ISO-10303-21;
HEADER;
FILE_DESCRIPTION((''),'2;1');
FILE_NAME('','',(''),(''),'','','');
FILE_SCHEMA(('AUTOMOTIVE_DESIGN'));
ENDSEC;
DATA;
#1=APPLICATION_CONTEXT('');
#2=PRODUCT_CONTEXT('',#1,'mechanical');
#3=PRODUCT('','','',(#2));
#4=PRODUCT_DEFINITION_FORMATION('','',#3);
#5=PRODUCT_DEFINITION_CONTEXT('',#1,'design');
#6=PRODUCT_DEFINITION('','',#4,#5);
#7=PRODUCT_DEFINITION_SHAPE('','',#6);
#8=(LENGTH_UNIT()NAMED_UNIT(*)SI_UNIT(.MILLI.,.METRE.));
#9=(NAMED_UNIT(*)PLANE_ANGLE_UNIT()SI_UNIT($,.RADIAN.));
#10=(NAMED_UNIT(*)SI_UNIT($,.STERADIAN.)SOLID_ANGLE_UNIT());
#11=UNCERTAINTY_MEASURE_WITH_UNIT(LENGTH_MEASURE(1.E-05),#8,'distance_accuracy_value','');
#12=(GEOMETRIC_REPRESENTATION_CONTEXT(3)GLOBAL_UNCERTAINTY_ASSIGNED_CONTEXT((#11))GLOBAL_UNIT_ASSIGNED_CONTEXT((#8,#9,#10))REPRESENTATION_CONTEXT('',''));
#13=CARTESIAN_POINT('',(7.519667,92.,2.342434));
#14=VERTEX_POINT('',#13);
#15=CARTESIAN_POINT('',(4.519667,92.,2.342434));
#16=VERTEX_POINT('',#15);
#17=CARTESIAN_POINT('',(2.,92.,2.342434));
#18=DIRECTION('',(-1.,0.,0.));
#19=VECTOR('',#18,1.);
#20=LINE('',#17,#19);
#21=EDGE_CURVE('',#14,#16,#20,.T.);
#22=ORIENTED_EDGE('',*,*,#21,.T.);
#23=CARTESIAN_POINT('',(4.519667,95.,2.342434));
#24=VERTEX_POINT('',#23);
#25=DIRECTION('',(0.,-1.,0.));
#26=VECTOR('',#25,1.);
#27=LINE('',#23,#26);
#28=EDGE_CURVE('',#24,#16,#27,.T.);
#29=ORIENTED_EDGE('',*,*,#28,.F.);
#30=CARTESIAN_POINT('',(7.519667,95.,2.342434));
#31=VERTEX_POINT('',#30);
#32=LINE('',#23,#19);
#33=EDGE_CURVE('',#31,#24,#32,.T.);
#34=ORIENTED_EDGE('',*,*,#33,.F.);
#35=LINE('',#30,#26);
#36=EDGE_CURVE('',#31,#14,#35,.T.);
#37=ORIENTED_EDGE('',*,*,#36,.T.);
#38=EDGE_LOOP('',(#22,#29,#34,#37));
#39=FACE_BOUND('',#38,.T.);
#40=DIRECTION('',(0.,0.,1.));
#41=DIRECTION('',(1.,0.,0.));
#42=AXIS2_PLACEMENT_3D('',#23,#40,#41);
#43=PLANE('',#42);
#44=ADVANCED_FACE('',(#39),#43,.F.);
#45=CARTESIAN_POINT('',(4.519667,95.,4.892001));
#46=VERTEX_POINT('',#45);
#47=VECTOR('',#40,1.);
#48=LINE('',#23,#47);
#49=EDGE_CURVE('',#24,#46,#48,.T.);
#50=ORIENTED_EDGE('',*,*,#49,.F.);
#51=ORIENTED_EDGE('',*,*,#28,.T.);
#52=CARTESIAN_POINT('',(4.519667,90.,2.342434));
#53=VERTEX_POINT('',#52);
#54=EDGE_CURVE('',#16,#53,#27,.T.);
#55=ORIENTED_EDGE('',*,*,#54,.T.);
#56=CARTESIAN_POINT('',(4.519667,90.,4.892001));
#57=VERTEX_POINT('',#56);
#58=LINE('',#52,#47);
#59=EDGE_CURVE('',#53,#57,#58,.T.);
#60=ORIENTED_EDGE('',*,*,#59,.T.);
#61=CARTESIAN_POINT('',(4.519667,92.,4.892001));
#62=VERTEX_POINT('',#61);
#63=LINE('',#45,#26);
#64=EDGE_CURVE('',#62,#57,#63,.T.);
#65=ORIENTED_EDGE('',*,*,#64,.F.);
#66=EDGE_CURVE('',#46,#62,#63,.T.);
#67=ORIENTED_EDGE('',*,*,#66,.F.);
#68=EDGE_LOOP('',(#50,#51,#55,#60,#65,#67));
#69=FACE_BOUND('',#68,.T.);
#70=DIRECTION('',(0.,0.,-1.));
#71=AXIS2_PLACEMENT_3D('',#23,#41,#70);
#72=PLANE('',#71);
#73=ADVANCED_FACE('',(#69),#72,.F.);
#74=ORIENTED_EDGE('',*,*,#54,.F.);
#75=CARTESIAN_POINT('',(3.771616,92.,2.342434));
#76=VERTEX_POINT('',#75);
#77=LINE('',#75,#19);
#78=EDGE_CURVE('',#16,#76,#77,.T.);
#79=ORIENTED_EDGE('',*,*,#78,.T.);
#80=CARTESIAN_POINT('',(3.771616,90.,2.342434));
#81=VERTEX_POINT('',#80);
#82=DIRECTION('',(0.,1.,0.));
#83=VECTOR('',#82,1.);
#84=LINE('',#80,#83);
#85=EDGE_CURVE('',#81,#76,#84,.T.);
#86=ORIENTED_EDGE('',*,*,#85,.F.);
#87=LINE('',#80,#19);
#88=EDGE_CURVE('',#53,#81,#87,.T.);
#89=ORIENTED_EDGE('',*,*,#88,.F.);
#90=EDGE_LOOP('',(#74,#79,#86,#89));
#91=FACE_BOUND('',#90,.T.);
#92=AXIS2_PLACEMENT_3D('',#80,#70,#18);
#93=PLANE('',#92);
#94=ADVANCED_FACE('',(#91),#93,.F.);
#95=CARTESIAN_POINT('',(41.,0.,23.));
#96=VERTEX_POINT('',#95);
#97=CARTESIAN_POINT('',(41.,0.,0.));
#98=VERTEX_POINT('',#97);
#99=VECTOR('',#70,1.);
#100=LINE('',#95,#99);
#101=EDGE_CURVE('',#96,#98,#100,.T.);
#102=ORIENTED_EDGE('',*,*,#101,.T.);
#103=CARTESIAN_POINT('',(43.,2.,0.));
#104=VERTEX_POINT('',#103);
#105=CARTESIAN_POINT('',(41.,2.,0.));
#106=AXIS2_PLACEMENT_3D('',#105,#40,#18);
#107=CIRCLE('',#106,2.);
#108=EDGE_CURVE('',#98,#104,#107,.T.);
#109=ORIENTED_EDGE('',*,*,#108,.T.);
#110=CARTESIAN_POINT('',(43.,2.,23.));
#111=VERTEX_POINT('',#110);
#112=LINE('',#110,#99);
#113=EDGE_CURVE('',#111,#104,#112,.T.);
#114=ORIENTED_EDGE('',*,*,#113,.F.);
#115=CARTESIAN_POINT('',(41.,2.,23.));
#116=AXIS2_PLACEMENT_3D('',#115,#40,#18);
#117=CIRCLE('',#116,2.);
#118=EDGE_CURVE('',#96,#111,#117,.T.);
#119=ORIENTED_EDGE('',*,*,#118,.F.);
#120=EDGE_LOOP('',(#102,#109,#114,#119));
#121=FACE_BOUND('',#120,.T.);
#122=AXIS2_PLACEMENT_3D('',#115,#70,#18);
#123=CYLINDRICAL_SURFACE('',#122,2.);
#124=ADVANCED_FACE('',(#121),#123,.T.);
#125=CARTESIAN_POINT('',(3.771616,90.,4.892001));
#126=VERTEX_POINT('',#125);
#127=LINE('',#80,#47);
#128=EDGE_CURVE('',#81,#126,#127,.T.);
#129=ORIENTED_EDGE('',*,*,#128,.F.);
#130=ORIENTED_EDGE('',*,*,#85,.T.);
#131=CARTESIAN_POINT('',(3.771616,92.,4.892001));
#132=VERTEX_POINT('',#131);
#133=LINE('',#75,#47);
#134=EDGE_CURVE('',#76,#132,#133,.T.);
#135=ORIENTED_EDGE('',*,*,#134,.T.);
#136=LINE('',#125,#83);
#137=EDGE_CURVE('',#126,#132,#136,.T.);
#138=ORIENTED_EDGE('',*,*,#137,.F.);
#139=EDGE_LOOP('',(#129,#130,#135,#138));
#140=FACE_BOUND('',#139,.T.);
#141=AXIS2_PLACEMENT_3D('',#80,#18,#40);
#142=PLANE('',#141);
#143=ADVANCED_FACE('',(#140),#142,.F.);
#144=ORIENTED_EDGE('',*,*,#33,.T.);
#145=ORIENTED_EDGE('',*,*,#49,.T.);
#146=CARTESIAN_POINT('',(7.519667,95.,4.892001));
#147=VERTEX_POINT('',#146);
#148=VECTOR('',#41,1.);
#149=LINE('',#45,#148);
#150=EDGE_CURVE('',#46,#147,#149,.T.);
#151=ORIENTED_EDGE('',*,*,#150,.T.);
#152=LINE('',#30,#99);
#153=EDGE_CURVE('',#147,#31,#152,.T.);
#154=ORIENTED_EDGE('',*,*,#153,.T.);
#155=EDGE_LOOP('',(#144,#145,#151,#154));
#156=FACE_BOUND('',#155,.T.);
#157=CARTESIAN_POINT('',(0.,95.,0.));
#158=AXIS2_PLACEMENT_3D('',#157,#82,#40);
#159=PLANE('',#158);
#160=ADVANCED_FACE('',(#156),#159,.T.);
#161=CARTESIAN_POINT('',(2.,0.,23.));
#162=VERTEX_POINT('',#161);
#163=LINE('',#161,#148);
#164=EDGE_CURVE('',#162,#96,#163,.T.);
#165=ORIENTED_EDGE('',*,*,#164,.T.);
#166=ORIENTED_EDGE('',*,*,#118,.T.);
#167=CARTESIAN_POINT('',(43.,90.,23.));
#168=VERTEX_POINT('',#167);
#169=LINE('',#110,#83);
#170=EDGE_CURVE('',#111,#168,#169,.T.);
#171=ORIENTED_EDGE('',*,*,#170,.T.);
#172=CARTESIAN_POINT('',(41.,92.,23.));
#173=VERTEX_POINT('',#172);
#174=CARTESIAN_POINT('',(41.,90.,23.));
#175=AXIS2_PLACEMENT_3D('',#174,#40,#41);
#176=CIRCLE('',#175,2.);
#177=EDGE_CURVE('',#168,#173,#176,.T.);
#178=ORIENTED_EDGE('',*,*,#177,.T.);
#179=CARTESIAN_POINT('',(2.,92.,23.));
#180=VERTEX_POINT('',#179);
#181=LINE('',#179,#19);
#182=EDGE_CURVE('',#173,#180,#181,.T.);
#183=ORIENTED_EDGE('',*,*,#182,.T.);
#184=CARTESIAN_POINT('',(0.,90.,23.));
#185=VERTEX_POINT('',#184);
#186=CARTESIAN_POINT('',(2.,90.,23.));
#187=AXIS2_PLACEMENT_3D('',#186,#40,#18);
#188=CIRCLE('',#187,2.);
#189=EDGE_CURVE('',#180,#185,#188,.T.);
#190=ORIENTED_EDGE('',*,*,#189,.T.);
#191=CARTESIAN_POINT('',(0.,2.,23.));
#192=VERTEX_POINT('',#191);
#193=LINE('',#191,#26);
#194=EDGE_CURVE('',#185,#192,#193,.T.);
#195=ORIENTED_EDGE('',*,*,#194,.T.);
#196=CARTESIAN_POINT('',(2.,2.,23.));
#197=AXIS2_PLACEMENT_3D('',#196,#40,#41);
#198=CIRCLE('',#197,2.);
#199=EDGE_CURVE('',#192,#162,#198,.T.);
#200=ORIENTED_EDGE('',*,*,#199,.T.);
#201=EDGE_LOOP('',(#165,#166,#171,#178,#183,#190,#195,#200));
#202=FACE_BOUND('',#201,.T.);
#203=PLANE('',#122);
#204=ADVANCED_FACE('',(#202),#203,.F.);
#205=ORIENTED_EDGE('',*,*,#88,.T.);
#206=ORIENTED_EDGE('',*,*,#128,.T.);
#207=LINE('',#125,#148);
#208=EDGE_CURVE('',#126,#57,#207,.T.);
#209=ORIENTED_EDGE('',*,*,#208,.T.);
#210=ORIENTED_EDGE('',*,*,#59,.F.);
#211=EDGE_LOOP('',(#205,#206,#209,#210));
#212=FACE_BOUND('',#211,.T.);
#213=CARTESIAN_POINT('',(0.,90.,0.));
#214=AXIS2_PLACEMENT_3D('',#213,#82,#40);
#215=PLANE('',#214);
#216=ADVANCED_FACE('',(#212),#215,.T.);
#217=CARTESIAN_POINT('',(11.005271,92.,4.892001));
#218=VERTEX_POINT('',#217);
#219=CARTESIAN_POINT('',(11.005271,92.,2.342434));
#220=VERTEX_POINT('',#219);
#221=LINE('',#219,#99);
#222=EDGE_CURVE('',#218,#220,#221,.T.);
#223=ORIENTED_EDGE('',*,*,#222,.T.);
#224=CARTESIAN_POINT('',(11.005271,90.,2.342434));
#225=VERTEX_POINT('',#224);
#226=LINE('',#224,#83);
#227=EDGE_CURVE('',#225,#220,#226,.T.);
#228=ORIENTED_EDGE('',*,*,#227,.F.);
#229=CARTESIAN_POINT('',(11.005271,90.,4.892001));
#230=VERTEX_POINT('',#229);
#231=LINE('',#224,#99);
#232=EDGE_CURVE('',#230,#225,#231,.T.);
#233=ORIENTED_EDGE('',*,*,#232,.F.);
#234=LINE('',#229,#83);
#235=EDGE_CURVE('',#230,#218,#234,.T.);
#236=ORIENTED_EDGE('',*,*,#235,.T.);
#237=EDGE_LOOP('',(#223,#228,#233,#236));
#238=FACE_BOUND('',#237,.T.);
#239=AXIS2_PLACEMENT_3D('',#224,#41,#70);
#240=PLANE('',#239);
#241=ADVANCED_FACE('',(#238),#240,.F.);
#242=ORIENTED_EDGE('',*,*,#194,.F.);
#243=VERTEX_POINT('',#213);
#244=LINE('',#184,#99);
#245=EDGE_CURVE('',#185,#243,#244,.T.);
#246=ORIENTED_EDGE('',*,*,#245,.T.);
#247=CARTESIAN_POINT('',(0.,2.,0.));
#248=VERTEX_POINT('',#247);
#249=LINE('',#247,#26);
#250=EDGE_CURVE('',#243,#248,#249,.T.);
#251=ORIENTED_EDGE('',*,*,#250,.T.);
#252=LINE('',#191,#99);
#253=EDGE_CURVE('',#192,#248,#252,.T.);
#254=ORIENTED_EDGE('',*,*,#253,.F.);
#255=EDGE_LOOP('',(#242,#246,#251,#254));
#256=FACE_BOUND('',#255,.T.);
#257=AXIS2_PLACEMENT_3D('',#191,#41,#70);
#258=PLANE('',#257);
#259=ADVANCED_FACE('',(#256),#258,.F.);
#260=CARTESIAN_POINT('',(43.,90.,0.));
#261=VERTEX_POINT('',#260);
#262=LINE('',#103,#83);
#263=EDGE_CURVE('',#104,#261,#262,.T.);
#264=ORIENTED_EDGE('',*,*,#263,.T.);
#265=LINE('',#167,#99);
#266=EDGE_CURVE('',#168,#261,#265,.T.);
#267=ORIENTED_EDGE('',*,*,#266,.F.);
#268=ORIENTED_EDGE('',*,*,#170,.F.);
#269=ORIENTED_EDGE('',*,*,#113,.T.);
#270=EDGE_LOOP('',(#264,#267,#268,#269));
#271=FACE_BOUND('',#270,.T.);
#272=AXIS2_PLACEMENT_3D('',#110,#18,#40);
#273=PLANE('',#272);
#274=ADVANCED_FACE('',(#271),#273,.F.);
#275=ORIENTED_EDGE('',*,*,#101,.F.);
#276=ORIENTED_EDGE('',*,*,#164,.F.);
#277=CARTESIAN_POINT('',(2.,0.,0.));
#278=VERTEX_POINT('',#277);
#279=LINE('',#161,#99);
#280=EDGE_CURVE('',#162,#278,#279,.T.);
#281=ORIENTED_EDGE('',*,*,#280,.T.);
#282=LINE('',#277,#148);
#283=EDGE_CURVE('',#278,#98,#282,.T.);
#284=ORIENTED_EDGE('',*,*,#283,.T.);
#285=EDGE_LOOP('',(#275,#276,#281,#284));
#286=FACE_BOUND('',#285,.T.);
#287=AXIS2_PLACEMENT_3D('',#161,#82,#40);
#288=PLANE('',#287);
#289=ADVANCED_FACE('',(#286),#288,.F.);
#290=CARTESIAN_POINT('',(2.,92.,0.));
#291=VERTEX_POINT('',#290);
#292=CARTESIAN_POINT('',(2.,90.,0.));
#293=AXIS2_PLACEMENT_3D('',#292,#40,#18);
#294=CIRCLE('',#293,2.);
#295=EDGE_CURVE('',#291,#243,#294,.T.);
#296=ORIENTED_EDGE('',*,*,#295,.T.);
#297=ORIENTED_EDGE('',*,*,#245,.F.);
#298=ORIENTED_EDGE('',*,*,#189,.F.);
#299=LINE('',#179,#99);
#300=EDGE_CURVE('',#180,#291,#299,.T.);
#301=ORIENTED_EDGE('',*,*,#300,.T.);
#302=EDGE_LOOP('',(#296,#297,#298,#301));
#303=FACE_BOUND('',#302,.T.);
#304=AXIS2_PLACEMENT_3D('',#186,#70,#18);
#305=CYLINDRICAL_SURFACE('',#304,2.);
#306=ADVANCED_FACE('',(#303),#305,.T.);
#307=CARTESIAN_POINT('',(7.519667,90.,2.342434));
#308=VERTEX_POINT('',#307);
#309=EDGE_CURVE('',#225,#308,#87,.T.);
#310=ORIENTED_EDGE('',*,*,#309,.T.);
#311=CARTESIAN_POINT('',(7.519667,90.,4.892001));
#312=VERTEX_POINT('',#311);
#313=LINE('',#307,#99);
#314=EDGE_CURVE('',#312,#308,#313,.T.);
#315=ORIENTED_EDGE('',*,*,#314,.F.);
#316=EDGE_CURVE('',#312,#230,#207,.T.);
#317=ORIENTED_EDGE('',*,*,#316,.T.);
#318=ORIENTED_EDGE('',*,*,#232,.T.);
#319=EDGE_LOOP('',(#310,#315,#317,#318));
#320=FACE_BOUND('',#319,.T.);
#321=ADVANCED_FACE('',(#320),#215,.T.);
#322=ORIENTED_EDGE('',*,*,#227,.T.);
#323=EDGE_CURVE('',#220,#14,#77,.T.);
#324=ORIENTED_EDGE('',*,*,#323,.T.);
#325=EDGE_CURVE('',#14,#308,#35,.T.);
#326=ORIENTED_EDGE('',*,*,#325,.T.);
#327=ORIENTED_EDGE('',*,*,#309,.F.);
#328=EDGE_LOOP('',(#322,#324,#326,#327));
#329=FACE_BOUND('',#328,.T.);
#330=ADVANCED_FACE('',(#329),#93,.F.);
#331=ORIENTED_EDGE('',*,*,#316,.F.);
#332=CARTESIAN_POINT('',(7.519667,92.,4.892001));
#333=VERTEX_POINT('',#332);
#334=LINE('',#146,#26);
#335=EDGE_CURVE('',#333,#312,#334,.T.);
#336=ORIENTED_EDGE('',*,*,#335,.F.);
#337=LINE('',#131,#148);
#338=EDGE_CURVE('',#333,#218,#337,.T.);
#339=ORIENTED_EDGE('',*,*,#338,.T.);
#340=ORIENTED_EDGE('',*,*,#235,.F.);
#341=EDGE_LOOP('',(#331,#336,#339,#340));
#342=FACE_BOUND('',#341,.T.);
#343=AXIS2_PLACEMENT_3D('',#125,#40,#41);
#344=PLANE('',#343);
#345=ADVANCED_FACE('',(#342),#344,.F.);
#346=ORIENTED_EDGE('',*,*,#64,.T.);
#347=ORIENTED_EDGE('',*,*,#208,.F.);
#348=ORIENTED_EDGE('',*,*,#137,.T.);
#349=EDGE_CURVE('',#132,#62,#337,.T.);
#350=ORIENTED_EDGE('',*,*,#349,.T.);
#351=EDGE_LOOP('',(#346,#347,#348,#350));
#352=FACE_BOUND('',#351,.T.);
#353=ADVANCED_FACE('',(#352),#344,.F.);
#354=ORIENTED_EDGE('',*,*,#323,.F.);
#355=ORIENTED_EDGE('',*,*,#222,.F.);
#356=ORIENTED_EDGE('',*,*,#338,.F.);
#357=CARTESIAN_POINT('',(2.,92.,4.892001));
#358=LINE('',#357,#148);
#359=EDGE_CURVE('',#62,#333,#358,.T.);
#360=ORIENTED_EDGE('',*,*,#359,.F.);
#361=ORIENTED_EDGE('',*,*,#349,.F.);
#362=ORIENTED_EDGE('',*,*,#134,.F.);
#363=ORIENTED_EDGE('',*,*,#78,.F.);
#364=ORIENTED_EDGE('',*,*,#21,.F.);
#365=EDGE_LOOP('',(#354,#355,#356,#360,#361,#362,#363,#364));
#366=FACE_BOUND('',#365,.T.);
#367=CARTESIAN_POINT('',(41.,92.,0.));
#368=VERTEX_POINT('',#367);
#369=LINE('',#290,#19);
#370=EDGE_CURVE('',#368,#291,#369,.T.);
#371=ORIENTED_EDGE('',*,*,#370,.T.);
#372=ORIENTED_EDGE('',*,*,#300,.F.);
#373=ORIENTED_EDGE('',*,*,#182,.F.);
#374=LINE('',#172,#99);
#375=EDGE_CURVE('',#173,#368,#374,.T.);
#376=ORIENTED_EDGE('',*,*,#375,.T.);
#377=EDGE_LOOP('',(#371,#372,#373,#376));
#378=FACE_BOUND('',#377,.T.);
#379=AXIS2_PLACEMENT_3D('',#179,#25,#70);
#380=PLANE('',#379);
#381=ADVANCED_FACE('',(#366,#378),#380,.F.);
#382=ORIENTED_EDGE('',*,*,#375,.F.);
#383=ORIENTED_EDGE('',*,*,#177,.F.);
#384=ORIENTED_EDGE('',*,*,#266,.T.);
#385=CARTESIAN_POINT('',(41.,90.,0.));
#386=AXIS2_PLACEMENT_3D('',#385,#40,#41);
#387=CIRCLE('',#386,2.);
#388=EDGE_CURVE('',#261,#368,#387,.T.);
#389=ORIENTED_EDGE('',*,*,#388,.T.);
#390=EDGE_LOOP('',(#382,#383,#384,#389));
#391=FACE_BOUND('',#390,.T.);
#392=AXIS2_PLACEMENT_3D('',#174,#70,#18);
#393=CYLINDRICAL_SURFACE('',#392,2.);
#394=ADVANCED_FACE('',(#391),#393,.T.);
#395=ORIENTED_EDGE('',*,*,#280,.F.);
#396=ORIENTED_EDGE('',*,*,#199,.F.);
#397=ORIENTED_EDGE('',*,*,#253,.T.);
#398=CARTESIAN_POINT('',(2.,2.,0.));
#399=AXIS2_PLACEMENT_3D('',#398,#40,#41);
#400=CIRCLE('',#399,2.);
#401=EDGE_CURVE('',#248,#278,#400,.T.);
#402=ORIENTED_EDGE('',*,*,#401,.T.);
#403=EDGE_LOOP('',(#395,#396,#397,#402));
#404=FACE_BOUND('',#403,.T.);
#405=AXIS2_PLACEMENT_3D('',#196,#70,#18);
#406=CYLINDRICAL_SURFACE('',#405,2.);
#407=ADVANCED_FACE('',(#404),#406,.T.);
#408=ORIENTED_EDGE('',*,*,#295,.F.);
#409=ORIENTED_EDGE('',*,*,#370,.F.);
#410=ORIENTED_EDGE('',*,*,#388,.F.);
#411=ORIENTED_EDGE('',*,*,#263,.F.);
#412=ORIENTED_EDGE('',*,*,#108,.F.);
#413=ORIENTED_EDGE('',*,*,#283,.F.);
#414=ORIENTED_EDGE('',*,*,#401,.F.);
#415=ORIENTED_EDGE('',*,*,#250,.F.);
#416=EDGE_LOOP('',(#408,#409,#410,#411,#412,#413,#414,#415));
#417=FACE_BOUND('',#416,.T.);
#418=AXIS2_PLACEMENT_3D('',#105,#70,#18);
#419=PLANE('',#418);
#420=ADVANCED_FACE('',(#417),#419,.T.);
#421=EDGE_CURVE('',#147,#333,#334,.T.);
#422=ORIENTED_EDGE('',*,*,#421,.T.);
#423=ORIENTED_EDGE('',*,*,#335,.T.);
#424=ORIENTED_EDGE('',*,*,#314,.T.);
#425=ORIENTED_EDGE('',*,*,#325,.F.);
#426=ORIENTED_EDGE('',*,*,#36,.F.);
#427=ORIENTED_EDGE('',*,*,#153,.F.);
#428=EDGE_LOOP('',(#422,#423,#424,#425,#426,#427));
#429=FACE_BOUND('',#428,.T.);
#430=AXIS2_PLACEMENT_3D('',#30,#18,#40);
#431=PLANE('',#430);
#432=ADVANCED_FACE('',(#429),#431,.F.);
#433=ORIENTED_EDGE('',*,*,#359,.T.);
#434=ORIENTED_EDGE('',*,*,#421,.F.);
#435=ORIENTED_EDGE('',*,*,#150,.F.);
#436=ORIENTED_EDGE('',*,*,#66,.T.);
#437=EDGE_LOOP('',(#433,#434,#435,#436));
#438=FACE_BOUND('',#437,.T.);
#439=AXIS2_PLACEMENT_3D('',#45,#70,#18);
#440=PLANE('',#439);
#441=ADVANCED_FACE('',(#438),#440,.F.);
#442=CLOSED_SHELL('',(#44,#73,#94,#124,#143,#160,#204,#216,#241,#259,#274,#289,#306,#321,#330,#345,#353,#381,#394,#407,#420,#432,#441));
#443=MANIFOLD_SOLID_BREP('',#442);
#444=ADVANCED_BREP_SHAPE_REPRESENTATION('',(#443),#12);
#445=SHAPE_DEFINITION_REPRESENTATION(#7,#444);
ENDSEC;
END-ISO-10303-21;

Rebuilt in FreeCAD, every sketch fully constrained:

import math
import FreeCAD as App
import Part
import Sketcher

V = App.Vector
Q = App.Units.Quantity


def add_polygon(sketch, points):
    """Adds a closed chain of lines whose ends are joined by coincident constraints."""
    first, n = sketch.GeometryCount, len(points)
    for a, b in zip(points, points[1:] + points[:1]):
        sketch.addGeometry(Part.LineSegment(App.Vector(*a, 0), App.Vector(*b, 0)), False)
    for i in range(n):
        sketch.addConstraint(Sketcher.Constraint("Coincident", first + i, 2, first + (i + 1) % n, 1))

doc = App.newDocument("Part")
body = doc.addObject("PartDesign::Body", "Body")

sketch1 = doc.addObject("Sketcher::SketchObject", "Sketch")
body.addObject(sketch1)
sketch1.AttachmentSupport = (doc.XY_Plane, [""])
sketch1.MapMode = "FlatFace"
sketch1.addGeometry([
    Part.LineSegment(V(2, 0, 0), V(41, 0, 0)),
    Part.ArcOfCircle(Part.Circle(V(41, 2, 0), V(0, 0, 1), 2), math.radians(-90), math.radians(0)),
    Part.LineSegment(V(43, 2, 0), V(43, 90, 0)),
    Part.ArcOfCircle(Part.Circle(V(41, 90, 0), V(0, 0, 1), 2), math.radians(0), math.radians(90)),
    Part.LineSegment(V(41, 92, 0), V(2, 92, 0)),
    Part.ArcOfCircle(Part.Circle(V(2, 90, 0), V(0, 0, 1), 2), math.radians(90), math.radians(180)),
    Part.LineSegment(V(0, 90, 0), V(0, 2, 0)),
    Part.ArcOfCircle(Part.Circle(V(2, 2, 0), V(0, 0, 1), 2), math.radians(-180), math.radians(-90)),
], False)
sketch1.addConstraint([
    Sketcher.Constraint("Tangent", 0, 2, 1, 1),
    Sketcher.Constraint("Tangent", 1, 2, 2, 1),
    Sketcher.Constraint("Tangent", 2, 2, 3, 1),
    Sketcher.Constraint("Tangent", 3, 2, 4, 1),
    Sketcher.Constraint("Tangent", 4, 2, 5, 1),
    Sketcher.Constraint("Tangent", 5, 2, 6, 1),
    Sketcher.Constraint("Tangent", 6, 2, 7, 1),
    Sketcher.Constraint("Tangent", 7, 2, 0, 1),
    Sketcher.Constraint("Horizontal", 0),
    Sketcher.Constraint("Vertical", 2),
    Sketcher.Constraint("Horizontal", 4),
    Sketcher.Constraint("Vertical", 6),
    Sketcher.Constraint("Equal", 1, 3),
    Sketcher.Constraint("Equal", 3, 5),
    Sketcher.Constraint("Equal", 5, 7),
    Sketcher.Constraint("PointOnObject", 0, 2, -1),
    Sketcher.Constraint("PointOnObject", 5, 2, -2),
    Sketcher.Constraint("Radius", 1, Q("2 mm")),
    Sketcher.Constraint("DistanceX", 0, 1, 0, 2, Q("39 mm")),
    Sketcher.Constraint("DistanceY", 2, 1, 2, 2, Q("88 mm")),
])
pad1 = doc.addObject("PartDesign::Pad", "Pad")
body.addObject(pad1)
pad1.Profile = sketch1
pad1.Length = 23

sketch2 = doc.addObject("Sketcher::SketchObject", "Sketch001")
body.addObject(sketch2)
sketch2.AttachmentSupport = (doc.XZ_Plane, [""])
sketch2.MapMode = "FlatFace"
sketch2.AttachmentOffset = App.Placement(V(0, 0, -92), App.Rotation())
add_polygon(sketch2, [(3.8, 2.3), (3.8, 4.9), (11, 4.9), (11, 2.3)])
sketch2.addConstraint([
    Sketcher.Constraint("Vertical", 0),
    Sketcher.Constraint("Horizontal", 1),
    Sketcher.Constraint("Vertical", 2),
    Sketcher.Constraint("Horizontal", 3),
    Sketcher.Constraint("DistanceY", -1, 1, 0, 2, Q("4.892001 mm")),
    Sketcher.Constraint("DistanceX", 1, 1, 1, 2, Q("7.233655 mm")),
    Sketcher.Constraint("DistanceY", 0, 1, 0, 2, Q("2.549567 mm")),
    Sketcher.Constraint("DistanceX", -1, 1, 1, 2, Q("11.005271 mm")),
])
pocket1 = doc.addObject("PartDesign::Pocket", "Pocket")
body.addObject(pocket1)
pocket1.Profile = sketch2
pocket1.Length = 2
pocket1.Reversed = True

sketch3 = doc.addObject("Sketcher::SketchObject", "Sketch002")
body.addObject(sketch3)
sketch3.AttachmentSupport = (doc.XZ_Plane, [""])
sketch3.MapMode = "FlatFace"
sketch3.AttachmentOffset = App.Placement(V(0, 0, -90), App.Rotation())
add_polygon(sketch3, [(4.5, 2.3), (4.5, 4.9), (7.5, 4.9), (7.5, 2.3)])
sketch3.addConstraint([
    Sketcher.Constraint("Vertical", 0),
    Sketcher.Constraint("Horizontal", 1),
    Sketcher.Constraint("Vertical", 2),
    Sketcher.Constraint("Horizontal", 3),
    Sketcher.Constraint("DistanceX", 1, 1, 1, 2, Q("3 mm")),
    Sketcher.Constraint("DistanceY", -1, 1, 0, 2, Q("4.892001 mm")),
    Sketcher.Constraint("DistanceY", 0, 1, 0, 2, Q("2.549567 mm")),
    Sketcher.Constraint("DistanceX", -1, 1, 0, 2, Q("4.519667 mm")),
])
pad2 = doc.addObject("PartDesign::Pad", "Pad001")
body.addObject(pad2)
pad2.Profile = sketch3
pad2.Length = 5
pad2.Reversed = True

doc.recompute()
